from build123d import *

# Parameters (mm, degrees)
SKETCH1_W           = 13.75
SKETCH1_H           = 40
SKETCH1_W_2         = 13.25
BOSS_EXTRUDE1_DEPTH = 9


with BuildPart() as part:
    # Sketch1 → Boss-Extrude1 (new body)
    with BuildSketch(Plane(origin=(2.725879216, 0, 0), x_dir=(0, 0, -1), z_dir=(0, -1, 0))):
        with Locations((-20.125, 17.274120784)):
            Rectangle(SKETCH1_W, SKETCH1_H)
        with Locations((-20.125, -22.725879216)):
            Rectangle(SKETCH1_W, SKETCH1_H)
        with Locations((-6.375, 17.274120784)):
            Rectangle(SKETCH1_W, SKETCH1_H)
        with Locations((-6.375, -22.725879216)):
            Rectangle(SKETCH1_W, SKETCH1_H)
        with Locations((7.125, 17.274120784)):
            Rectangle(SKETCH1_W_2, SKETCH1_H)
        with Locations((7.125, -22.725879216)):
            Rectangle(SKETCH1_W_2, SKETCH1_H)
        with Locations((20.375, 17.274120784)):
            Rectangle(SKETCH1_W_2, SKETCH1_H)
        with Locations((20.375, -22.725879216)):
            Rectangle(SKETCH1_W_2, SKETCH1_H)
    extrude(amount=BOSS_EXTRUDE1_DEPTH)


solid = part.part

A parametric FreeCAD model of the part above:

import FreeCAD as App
import Part
import Sketcher
from FreeCAD import Vector
Q = App.Units.Quantity


def add_polygon(sketch, points):
    """Adds a closed chain of lines whose ends are joined by coincident constraints."""
    first, n = sketch.GeometryCount, len(points)
    for a, b in zip(points, points[1:] + points[:1]):
        sketch.addGeometry(Part.LineSegment(App.Vector(*a, 0), App.Vector(*b, 0)), False)
    for i in range(n):
        sketch.addConstraint(Sketcher.Constraint("Coincident", first + i, 2, first + (i + 1) % n, 1))

doc = App.newDocument("Part")
body = doc.addObject("PartDesign::Body", "Body")

sketch1 = body.newObject("Sketcher::SketchObject", "Sketch")
sketch1.AttachmentSupport = (doc.getObject("XZ_Plane"), [""])
sketch1.MapMode = "FlatFace"
add_polygon(sketch1, [(40, 27), (-40, 27), (-40, -27), (40, -27)])
sketch1.addConstraint([
    Sketcher.Constraint("Horizontal", 0),
    Sketcher.Constraint("Vertical", 1),
    Sketcher.Constraint("Horizontal", 2),
    Sketcher.Constraint("Vertical", 3),
    Sketcher.Constraint("Symmetric", 0, 2, 2, 2, -1, 1),
    Sketcher.Constraint("DistanceX", 0, 2, 0, 1, Q("80 mm")),
    Sketcher.Constraint("DistanceY", 1, 2, 1, 1, Q("54 mm")),
])
pad1 = body.newObject("PartDesign::Pad", "Pad")
pad1.Profile = sketch1
pad1.Length = 9

doc.recompute()
